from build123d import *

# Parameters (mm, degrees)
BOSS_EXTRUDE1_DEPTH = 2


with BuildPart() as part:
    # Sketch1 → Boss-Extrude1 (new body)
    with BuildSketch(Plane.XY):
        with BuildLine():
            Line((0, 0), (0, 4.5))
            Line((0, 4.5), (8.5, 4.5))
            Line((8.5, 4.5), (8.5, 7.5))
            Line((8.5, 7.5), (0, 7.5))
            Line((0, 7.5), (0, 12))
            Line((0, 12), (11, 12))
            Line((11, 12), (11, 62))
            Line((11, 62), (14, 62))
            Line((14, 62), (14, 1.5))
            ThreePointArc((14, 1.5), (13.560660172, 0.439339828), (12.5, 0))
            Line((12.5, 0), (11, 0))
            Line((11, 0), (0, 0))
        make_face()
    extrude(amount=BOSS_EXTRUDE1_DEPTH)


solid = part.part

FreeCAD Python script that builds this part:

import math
import FreeCAD as App
import Part
import Sketcher
from FreeCAD import Vector
Q = App.Units.Quantity

doc = App.newDocument("Part")
body = doc.addObject("PartDesign::Body", "Body")

sketch1 = body.newObject("Sketcher::SketchObject", "Sketch")
sketch1.AttachmentSupport = (doc.getObject("XY_Plane"), [""])
sketch1.MapMode = "FlatFace"
sketch1.addGeometry([
    Part.LineSegment(Vector(0, 4.5, 0), Vector(0, 0, 0)),
    Part.LineSegment(Vector(0, 0, 0), Vector(12.5, 0, 0)),
    Part.ArcOfCircle(Part.Circle(Vector(12.5, 1.5, 0), Vector(0, 0, 1), 1.5), math.radians(-90), math.radians(0)),
    Part.LineSegment(Vector(14, 1.5, 0), Vector(14, 62, 0)),
    Part.LineSegment(Vector(14, 62, 0), Vector(11, 62, 0)),
    Part.LineSegment(Vector(11, 62, 0), Vector(11, 12, 0)),
    Part.LineSegment(Vector(11, 12, 0), Vector(0, 12, 0)),
    Part.LineSegment(Vector(0, 12, 0), Vector(0, 7.5, 0)),
    Part.LineSegment(Vector(0, 7.5, 0), Vector(8.5, 7.5, 0)),
    Part.LineSegment(Vector(8.5, 7.5, 0), Vector(8.5, 4.5, 0)),
    Part.LineSegment(Vector(8.5, 4.5, 0), Vector(0, 4.5, 0)),
], False)
sketch1.addConstraint([
    Sketcher.Constraint("Coincident", 0, 2, 1, 1),
    Sketcher.Constraint("Tangent", 1, 2, 2, 1),
    Sketcher.Constraint("Tangent", 2, 2, 3, 1),
    Sketcher.Constraint("Coincident", 3, 2, 4, 1),
    Sketcher.Constraint("Coincident", 4, 2, 5, 1),
    Sketcher.Constraint("Coincident", 5, 2, 6, 1),
    Sketcher.Constraint("Coincident", 6, 2, 7, 1),
    Sketcher.Constraint("Coincident", 7, 2, 8, 1),
    Sketcher.Constraint("Coincident", 8, 2, 9, 1),
    Sketcher.Constraint("Coincident", 9, 2, 10, 1),
    Sketcher.Constraint("Coincident", 10, 2, 0, 1),
    Sketcher.Constraint("Vertical", 0),
    Sketcher.Constraint("Horizontal", 1),
    Sketcher.Constraint("Vertical", 3),
    Sketcher.Constraint("Horizontal", 4),
    Sketcher.Constraint("Vertical", 5),
    Sketcher.Constraint("Horizontal", 6),
    Sketcher.Constraint("Vertical", 7),
    Sketcher.Constraint("Horizontal", 8),
    Sketcher.Constraint("Vertical", 9),
    Sketcher.Constraint("Horizontal", 10),
    Sketcher.Constraint("Coincident", 0, 2, -1, 1),
    Sketcher.Constraint("PointOnObject", 6, 2, -2),
    Sketcher.Constraint("Equal", 0, 7),
    Sketcher.Constraint("Equal", 4, 9),
    Sketcher.Constraint("Radius", 2, Q("1.5 mm")),
    Sketcher.Constraint("DistanceX", 4, 2, 4, 1, Q("3 mm")),
    Sketcher.Constraint("DistanceX", 6, 2, 6, 1, Q("11 mm")),
    Sketcher.Constraint("DistanceY", 5, 2, 5, 1, Q("50 mm")),
    Sketcher.Constraint("DistanceX", 8, 1, 8, 2, Q("8.5 mm")),
    Sketcher.Constraint("DistanceY", 0, 2, 0, 1, Q("4.5 mm")),
])
pad1 = body.newObject("PartDesign::Pad", "Pad")
pad1.Profile = sketch1
pad1.Length = 2

doc.recompute()
